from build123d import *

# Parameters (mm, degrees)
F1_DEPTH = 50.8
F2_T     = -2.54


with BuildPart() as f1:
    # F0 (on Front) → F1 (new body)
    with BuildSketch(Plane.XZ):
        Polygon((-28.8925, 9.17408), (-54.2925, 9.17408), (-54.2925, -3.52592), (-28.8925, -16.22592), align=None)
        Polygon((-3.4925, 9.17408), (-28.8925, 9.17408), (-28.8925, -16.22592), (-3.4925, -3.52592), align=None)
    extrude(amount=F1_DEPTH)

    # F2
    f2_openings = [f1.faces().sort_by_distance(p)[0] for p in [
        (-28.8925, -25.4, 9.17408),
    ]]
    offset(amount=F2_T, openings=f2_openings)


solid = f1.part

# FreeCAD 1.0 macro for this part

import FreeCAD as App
import Part
import Sketcher

V = App.Vector
Q = App.Units.Quantity


def faces_at(feature, points):
    """Names of the faces that lie closest to the given points."""
    faces = feature.Shape.Faces
    near = lambda p: min(range(len(faces)), key=lambda i: faces[i].distToShape(Part.Vertex(*p))[0])
    return sorted({f"Face{near(p) + 1}" for p in points})

doc = App.newDocument("Part")
body = doc.addObject("PartDesign::Body", "Body")

# Sketch on XZ plane
sketch1 = body.newObject("Sketcher::SketchObject", "Sketch")
sketch1.AttachmentSupport = (doc.getObject("XZ_Plane"), [""])
sketch1.MapMode = "FlatFace"
sketch1.addGeometry([
    Part.LineSegment(V(-54, 9, 0), V(-54, -4, 0)),  # 0
    Part.LineSegment(V(-54, -4, 0), V(-29, -16, 0)),  # 1
    Part.LineSegment(V(-29, -16, 0), V(-3, -4, 0)),  # 2
    Part.LineSegment(V(-3, -4, 0), V(-3, 9, 0)),  # 3
    Part.LineSegment(V(-3, 9, 0), V(-54, 9, 0)),  # 4
], False)
sketch1.addConstraint([
    Sketcher.Constraint("Coincident", 0, 2, 1, 1),
    Sketcher.Constraint("Coincident", 1, 2, 2, 1),
    Sketcher.Constraint("Coincident", 2, 2, 3, 1),
    Sketcher.Constraint("Coincident", 3, 2, 4, 1),
    Sketcher.Constraint("Coincident", 4, 2, 0, 1),
    Sketcher.Constraint("Vertical", 0),
    Sketcher.Constraint("Vertical", 3),
    Sketcher.Constraint("Horizontal", 4),
    Sketcher.Constraint("Horizontal", 0, 2, 2, 2),
    Sketcher.Constraint("Equal", 1, 2),
    Sketcher.Constraint("DistanceX", 4, 2, 4, 1, Q("2 in")),
    Sketcher.Constraint("DistanceY", 0, 2, 0, 1, Q("0.5 in")),
    Sketcher.Constraint("DistanceY", 1, 2, 3, 2, Q("1 in")),
    Sketcher.Constraint("DistanceX", 0, 2, -1, 1, Q("2.1375 in")),
    Sketcher.Constraint("DistanceY", 0, 2, -1, 1, 3.52592),
])
pad1 = body.newObject("PartDesign::Pad", "Pad")
pad1.Profile = sketch1
pad1.Length = Q("2 in")
doc.recompute()

thickness = body.newObject("PartDesign::Thickness", "Thickness")
thickness.Base = (pad1, faces_at(pad1, [(-28.892, -25.4, 9.174)]))
thickness.Value = Q("0.1 in")
thickness.Reversed = True
thickness.Join = "Arc"

doc.recompute()
